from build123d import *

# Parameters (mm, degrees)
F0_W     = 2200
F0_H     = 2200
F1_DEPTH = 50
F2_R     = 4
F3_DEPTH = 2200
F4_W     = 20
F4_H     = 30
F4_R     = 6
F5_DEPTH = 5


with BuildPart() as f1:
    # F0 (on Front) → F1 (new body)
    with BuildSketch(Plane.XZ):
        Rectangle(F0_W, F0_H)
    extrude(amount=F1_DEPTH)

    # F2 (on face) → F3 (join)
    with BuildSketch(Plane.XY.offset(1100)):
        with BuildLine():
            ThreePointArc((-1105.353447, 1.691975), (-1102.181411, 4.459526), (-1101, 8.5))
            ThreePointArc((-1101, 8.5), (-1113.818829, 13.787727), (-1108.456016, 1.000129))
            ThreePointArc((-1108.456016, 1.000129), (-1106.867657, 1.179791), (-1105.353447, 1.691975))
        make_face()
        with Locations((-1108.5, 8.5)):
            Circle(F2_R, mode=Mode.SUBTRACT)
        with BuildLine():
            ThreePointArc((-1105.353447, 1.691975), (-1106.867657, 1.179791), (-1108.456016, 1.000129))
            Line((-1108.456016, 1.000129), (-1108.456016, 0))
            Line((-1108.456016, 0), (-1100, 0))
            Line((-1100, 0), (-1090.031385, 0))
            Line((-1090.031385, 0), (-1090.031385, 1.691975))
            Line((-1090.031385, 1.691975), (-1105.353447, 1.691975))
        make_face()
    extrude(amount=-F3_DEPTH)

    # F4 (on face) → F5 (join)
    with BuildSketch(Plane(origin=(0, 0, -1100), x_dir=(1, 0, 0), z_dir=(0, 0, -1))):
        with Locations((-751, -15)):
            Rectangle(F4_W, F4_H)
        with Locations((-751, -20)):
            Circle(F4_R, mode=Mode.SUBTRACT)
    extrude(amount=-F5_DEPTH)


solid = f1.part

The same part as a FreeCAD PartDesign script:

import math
import FreeCAD as App
import Part
import Sketcher
Q = App.Units.Quantity


def add_polygon(sketch, points):
    """Adds a closed chain of lines whose ends are joined by coincident constraints."""
    first, n = sketch.GeometryCount, len(points)
    for a, b in zip(points, points[1:] + points[:1]):
        sketch.addGeometry(Part.LineSegment(App.Vector(*a, 0), App.Vector(*b, 0)), False)
    for i in range(n):
        sketch.addConstraint(Sketcher.Constraint("Coincident", first + i, 2, first + (i + 1) % n, 1))

doc = App.newDocument("Part")
body = doc.addObject("PartDesign::Body", "Body")

sketch1 = body.newObject("Sketcher::SketchObject", "Sketch")
sketch1.AttachmentSupport = (doc.getObject("XZ_Plane"), [""])
sketch1.MapMode = "FlatFace"
add_polygon(sketch1, [(-1100, 1100), (-1100, -1100), (1100, -1100), (1100, 1100)])
sketch1.addConstraint(Sketcher.Constraint("Vertical", 0))
sketch1.addConstraint(Sketcher.Constraint("Horizontal", 1))
sketch1.addConstraint(Sketcher.Constraint("Vertical", 2))
sketch1.addConstraint(Sketcher.Constraint("Horizontal", 3))
sketch1.addConstraint(Sketcher.Constraint("Symmetric", 0, 2, 2, 2, -1, 1))
sketch1.addConstraint(Sketcher.Constraint("Equal", 3, 0))
sketch1.addConstraint(Sketcher.Constraint("DistanceX", 1, 1, 1, 2, Q("2200 mm")))
pad1 = body.newObject("PartDesign::Pad", "Pad")
pad1.Profile = sketch1
pad1.Length = 50

sketch2 = body.newObject("Sketcher::SketchObject", "Sketch001")
sketch2.AttachmentSupport = (doc.getObject("XY_Plane"), [""])
sketch2.MapMode = "FlatFace"
sketch2.AttachmentOffset = App.Placement(App.Vector(0, 0, 1100), App.Rotation())
sketch2.addGeometry(Part.ArcOfCircle(Part.Circle(App.Vector(-1108.5, 8.5, 0), App.Vector(0, 0, 1), 7.5), math.radians(-65), math.radians(0)), False)
sketch2.addGeometry(Part.ArcOfCircle(Part.Circle(App.Vector(-1108.5, 8.5, 0), App.Vector(0, 0, 1), 7.5), math.radians(0), math.radians(270)), False)
sketch2.addGeometry(Part.LineSegment(App.Vector(-1108.5, 1, 0), App.Vector(-1108.5, 0, 0)), False)
sketch2.addGeometry(Part.LineSegment(App.Vector(-1108.5, 0, 0), App.Vector(-1090, 0, 0)), False)
sketch2.addGeometry(Part.LineSegment(App.Vector(-1090, 0, 0), App.Vector(-1090, 1.7, 0)), False)
sketch2.addGeometry(Part.LineSegment(App.Vector(-1090, 1.7, 0), App.Vector(-1105.4, 1.7, 0)), False)
sketch2.addGeometry(Part.Circle(App.Vector(-1108.5, 8.5, 0), App.Vector(0, 0, 1), 4), False)
sketch2.addConstraint(Sketcher.Constraint("Tangent", 0, 2, 1, 1))
sketch2.addConstraint(Sketcher.Constraint("Coincident", 1, 2, 2, 1))
sketch2.addConstraint(Sketcher.Constraint("Coincident", 2, 2, 3, 1))
sketch2.addConstraint(Sketcher.Constraint("Coincident", 3, 2, 4, 1))
sketch2.addConstraint(Sketcher.Constraint("Coincident", 4, 2, 5, 1))
sketch2.addConstraint(Sketcher.Constraint("Coincident", 5, 2, 0, 1))
sketch2.addConstraint(Sketcher.Constraint("Vertical", 2))
sketch2.addConstraint(Sketcher.Constraint("Horizontal", 3))
sketch2.addConstraint(Sketcher.Constraint("Vertical", 4))
sketch2.addConstraint(Sketcher.Constraint("Horizontal", 5))
sketch2.addConstraint(Sketcher.Constraint("Coincident", 6, 3, 0, 3))
sketch2.addConstraint(Sketcher.Constraint("Equal", 0, 1))
sketch2.addConstraint(Sketcher.Constraint("PointOnObject", 2, 2, -1))
sketch2.addConstraint(Sketcher.Constraint("Horizontal", 6, 3, 0, 2))
sketch2.addConstraint(Sketcher.Constraint("Diameter", 6, Q("8 mm")))
sketch2.addConstraint(Sketcher.Constraint("Radius", 0, Q("7.500001 mm")))
sketch2.addConstraint(Sketcher.Constraint("DistanceX", 0, 2, -1, 1, Q("1101 mm")))
sketch2.addConstraint(Sketcher.Constraint("DistanceY", -1, 1, 0, 3, Q("8.500001 mm")))
sketch2.addConstraint(Sketcher.Constraint("DistanceX", 3, 1, 3, 2, Q("18.424631 mm")))
sketch2.addConstraint(Sketcher.Constraint("DistanceX", 5, 2, 5, 1, Q("15.322062 mm")))
sketch2.addConstraint(Sketcher.Constraint("DistanceY", 4, 1, 4, 2, Q("1.691975 mm")))
pad2 = body.newObject("PartDesign::Pad", "Pad001")
pad2.Profile = sketch2
pad2.Length = 2200
pad2.Reversed = True

sketch3 = body.newObject("Sketcher::SketchObject", "Sketch002")
sketch3.AttachmentSupport = (doc.getObject("XY_Plane"), [""])
sketch3.MapMode = "FlatFace"
sketch3.AttachmentOffset = App.Placement(App.Vector(0, 0, -1100), App.Rotation())
add_polygon(sketch3, [(-761, 0), (-761, 30), (-741, 30), (-741, 0)])
sketch3.addGeometry(Part.Circle(App.Vector(-751, 20, 0), App.Vector(0, 0, 1), 6), False)
sketch3.addConstraint(Sketcher.Constraint("Vertical", 0))
sketch3.addConstraint(Sketcher.Constraint("Horizontal", 1))
sketch3.addConstraint(Sketcher.Constraint("Vertical", 2))
sketch3.addConstraint(Sketcher.Constraint("Horizontal", 3))
sketch3.addConstraint(Sketcher.Constraint("PointOnObject", 2, 2, -1))
sketch3.addConstraint(Sketcher.Constraint("Diameter", 4, Q("12 mm")))
sketch3.addConstraint(Sketcher.Constraint("DistanceX", 1, 1, 1, 2, Q("20 mm")))
sketch3.addConstraint(Sketcher.Constraint("DistanceY", 0, 1, 0, 2, Q("30 mm")))
sketch3.addConstraint(Sketcher.Constraint("DistanceX", 4, 3, -1, 1, Q("751 mm")))
sketch3.addConstraint(Sketcher.Constraint("DistanceY", -1, 1, 4, 3, Q("20 mm")))
sketch3.addConstraint(Sketcher.Constraint("DistanceX", 0, 2, -1, 1, Q("761 mm")))
pad3 = body.newObject("PartDesign::Pad", "Pad002")
pad3.Profile = sketch3
pad3.Length = 5

doc.recompute()
